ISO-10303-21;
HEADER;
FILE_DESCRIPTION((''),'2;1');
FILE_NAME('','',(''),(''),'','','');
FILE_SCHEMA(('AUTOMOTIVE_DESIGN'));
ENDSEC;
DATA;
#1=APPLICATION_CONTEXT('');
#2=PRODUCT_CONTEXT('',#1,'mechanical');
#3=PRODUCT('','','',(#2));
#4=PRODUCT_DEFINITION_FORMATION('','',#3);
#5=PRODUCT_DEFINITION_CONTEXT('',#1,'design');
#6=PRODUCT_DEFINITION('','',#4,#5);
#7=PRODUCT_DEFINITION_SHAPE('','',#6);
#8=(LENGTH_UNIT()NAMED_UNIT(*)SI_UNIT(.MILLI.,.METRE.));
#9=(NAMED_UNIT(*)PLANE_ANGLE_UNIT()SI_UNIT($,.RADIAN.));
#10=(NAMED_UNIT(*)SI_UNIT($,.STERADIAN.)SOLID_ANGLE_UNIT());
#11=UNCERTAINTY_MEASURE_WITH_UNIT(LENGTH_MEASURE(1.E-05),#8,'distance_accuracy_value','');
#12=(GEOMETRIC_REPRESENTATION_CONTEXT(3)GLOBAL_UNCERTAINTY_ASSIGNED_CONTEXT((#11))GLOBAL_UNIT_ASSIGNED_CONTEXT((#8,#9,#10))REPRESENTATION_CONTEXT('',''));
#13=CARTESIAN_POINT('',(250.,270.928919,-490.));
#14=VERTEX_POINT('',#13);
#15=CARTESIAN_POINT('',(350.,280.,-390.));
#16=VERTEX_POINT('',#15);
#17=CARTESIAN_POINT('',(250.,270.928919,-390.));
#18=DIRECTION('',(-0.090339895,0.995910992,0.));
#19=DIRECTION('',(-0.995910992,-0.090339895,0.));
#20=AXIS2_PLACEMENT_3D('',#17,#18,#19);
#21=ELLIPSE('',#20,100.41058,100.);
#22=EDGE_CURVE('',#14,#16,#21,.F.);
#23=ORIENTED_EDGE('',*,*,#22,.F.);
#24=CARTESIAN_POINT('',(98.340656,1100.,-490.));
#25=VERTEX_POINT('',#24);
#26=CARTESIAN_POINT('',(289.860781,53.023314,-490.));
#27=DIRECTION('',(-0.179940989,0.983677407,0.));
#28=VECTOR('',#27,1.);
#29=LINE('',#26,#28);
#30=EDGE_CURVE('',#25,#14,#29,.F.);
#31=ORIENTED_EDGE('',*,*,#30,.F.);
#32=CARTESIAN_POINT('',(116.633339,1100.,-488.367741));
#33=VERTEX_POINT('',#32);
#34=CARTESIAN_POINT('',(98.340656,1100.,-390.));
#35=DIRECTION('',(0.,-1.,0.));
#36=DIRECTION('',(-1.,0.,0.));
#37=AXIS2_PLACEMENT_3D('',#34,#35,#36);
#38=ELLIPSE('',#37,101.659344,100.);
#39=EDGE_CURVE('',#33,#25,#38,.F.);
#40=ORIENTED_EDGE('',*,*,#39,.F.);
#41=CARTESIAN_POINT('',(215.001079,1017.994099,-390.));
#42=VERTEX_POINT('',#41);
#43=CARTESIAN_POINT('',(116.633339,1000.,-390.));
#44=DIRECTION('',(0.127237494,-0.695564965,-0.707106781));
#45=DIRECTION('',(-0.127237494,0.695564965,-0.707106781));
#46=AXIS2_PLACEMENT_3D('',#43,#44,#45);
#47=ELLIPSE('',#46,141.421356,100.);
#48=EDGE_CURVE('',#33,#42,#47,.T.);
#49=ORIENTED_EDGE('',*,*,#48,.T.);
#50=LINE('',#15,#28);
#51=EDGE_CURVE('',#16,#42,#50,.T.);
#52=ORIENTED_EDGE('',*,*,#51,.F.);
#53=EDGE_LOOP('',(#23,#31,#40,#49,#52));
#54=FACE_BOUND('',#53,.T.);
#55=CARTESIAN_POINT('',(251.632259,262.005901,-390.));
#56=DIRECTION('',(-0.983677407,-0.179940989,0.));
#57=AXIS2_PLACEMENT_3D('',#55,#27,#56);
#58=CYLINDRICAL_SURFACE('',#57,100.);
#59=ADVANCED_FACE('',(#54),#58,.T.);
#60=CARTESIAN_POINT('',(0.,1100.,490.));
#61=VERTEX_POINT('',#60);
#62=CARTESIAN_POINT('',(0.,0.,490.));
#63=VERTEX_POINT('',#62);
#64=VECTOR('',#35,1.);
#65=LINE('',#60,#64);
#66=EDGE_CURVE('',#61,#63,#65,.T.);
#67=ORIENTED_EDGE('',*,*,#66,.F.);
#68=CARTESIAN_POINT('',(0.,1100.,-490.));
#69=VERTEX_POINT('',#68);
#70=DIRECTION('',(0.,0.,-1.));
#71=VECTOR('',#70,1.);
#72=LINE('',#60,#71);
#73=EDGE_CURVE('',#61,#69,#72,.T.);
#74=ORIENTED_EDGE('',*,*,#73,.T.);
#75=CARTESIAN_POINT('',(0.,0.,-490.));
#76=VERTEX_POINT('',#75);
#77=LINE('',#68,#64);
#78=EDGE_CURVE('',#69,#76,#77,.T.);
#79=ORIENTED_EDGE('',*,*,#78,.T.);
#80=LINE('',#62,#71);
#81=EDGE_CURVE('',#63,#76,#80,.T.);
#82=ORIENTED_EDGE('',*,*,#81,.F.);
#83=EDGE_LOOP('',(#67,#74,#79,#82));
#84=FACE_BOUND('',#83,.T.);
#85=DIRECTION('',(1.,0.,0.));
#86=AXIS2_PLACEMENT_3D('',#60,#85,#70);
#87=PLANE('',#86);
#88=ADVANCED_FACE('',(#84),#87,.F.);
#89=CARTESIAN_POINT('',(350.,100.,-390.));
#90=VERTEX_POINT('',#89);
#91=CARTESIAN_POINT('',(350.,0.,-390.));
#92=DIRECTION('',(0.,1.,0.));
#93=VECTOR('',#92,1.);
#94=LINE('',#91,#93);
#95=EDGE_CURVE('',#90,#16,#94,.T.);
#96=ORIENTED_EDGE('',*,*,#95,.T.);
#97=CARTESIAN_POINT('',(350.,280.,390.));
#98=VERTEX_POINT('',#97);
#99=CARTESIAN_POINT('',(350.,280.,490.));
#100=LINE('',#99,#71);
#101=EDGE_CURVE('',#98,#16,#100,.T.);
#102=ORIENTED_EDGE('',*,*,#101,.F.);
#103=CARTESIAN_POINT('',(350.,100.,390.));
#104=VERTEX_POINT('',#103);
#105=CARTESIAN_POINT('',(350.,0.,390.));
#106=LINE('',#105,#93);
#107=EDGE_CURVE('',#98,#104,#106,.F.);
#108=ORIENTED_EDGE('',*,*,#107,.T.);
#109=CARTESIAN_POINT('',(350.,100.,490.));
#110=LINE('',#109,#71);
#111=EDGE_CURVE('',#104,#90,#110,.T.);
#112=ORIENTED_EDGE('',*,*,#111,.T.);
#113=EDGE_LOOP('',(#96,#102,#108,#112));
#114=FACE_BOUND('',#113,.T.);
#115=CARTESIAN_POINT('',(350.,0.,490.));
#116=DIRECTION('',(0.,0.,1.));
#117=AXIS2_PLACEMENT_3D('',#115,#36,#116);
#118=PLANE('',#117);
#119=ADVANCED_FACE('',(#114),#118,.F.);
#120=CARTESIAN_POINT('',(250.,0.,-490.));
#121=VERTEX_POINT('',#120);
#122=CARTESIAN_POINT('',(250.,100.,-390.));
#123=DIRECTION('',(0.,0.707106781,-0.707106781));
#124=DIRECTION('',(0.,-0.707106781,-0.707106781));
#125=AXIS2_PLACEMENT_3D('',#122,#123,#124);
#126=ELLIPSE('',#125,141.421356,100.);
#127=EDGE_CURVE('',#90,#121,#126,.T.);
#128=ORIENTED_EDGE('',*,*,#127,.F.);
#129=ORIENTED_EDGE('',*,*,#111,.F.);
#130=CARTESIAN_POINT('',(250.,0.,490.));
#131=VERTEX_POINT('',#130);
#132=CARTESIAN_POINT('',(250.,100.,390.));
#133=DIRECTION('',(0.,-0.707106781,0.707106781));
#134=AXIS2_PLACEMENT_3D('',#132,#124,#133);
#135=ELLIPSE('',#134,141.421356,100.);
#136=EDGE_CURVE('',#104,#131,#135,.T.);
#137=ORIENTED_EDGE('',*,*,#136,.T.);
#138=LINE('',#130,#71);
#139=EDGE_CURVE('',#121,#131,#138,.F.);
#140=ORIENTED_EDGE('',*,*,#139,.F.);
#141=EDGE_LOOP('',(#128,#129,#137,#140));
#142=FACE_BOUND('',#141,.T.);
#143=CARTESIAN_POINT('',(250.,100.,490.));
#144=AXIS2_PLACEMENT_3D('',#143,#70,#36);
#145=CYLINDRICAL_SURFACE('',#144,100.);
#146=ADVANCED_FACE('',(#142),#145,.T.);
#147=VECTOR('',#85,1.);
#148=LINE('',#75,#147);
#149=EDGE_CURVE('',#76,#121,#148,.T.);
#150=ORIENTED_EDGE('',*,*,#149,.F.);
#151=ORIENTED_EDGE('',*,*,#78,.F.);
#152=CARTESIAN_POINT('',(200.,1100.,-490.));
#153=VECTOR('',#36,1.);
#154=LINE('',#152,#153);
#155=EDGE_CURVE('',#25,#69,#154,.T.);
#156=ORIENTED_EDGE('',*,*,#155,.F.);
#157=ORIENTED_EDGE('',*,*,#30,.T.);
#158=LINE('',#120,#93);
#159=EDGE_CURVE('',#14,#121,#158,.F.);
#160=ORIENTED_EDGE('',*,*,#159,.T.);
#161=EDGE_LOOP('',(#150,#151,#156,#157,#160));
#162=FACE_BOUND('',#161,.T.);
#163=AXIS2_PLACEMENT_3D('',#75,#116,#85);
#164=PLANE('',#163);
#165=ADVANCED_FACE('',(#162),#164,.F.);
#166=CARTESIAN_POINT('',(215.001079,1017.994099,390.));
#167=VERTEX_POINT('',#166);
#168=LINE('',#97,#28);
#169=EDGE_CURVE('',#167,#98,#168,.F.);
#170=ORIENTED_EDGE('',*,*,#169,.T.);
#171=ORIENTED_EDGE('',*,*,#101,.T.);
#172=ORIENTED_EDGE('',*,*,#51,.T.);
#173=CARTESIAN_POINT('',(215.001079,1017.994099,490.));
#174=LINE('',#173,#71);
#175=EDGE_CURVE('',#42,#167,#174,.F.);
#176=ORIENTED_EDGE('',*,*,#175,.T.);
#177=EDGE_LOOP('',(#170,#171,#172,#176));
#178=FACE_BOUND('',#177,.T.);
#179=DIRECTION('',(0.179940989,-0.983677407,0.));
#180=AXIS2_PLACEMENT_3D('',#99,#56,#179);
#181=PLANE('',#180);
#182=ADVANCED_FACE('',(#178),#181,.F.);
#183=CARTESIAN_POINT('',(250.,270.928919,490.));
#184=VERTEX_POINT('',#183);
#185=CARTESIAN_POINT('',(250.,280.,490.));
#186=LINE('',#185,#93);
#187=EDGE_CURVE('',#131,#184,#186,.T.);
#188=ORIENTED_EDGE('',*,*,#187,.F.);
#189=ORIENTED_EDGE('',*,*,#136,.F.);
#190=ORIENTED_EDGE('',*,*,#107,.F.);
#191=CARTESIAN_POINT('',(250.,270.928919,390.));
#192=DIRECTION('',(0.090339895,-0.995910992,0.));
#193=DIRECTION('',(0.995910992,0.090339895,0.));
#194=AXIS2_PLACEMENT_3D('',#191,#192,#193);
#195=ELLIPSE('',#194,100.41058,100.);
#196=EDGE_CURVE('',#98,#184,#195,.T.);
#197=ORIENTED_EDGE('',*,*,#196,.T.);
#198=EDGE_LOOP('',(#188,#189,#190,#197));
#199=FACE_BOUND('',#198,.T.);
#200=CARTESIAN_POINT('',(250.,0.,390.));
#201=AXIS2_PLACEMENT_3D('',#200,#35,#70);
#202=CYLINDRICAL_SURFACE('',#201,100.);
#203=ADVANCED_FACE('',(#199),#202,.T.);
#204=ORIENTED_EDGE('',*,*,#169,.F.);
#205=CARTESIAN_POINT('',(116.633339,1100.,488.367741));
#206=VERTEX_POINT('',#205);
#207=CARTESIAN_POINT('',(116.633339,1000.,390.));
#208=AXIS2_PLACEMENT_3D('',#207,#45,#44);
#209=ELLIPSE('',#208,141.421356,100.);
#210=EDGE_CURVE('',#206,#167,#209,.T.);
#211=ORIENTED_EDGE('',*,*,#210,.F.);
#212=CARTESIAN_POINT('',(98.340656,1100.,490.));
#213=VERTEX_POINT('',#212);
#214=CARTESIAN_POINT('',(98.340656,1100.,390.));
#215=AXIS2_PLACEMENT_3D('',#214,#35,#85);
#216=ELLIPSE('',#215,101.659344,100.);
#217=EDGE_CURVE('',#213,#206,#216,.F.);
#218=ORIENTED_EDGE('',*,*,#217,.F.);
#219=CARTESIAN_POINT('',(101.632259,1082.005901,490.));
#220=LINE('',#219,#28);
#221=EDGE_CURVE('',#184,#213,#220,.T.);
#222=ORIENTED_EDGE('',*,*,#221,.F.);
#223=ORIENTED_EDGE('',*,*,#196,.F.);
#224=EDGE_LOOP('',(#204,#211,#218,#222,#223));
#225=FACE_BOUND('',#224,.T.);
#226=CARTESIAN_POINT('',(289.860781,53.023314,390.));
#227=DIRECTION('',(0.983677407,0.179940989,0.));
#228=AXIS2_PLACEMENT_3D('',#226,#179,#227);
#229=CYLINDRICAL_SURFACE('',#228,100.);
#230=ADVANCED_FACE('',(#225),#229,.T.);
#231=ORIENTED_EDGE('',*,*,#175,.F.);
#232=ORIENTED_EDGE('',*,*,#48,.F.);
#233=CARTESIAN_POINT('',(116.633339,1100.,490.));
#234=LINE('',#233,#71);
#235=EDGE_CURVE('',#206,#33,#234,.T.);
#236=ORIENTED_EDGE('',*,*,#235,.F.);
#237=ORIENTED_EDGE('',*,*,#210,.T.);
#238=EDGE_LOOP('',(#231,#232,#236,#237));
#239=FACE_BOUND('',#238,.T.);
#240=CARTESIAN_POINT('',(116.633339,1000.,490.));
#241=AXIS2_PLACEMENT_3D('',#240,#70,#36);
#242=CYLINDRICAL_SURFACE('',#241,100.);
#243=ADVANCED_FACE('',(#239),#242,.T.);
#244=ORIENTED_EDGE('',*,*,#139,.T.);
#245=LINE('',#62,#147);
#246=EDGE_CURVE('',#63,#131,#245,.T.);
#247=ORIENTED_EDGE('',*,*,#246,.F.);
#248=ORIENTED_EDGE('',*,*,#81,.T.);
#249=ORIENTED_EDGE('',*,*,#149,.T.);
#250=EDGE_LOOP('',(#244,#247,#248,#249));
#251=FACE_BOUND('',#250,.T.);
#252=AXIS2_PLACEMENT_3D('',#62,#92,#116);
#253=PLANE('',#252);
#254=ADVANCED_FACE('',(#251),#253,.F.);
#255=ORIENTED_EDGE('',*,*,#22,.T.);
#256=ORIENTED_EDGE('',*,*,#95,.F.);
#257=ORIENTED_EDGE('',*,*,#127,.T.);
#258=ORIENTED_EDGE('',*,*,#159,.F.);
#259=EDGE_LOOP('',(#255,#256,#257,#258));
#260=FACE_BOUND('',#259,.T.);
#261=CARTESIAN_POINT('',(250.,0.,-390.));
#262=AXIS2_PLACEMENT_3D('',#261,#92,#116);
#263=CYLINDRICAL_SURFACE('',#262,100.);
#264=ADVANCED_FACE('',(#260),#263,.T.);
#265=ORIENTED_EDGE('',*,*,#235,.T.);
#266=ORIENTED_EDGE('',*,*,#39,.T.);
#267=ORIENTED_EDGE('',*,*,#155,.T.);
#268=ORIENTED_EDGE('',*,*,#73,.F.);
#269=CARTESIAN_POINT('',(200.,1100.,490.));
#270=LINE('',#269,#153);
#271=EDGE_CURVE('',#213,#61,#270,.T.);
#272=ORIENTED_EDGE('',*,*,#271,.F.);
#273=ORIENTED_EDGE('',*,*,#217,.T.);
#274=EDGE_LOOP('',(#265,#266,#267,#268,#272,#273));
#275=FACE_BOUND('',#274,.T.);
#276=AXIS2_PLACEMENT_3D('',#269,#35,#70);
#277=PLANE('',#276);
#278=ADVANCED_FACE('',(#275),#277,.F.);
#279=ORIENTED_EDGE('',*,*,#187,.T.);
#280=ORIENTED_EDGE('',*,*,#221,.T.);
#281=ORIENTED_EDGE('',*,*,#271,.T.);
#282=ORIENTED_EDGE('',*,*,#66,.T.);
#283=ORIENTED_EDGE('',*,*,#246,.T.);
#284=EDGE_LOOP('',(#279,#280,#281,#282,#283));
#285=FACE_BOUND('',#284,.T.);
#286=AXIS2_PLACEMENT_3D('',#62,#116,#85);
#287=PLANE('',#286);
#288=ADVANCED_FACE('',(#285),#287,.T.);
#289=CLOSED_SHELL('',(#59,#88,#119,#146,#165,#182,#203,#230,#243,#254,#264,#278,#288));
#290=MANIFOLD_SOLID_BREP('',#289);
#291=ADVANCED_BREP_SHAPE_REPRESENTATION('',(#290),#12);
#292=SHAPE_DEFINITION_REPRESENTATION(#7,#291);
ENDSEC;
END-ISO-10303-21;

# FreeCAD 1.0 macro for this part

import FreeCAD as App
import Part
import Sketcher
from FreeCAD import Vector


def edges_at(feature, points):
    """Names of the edges that pass closest to the given points."""
    edges = feature.Shape.Edges
    near = lambda p: min(range(len(edges)), key=lambda i: edges[i].distToShape(Part.Vertex(*p))[0])
    return sorted({f"Edge{near(p) + 1}" for p in points})


def add_polygon(sketch, points):
    """Adds a closed chain of lines whose ends are joined by coincident constraints."""
    first, n = sketch.GeometryCount, len(points)
    for a, b in zip(points, points[1:] + points[:1]):
        sketch.addGeometry(Part.LineSegment(App.Vector(*a, 0), App.Vector(*b, 0)), False)
    for i in range(n):
        sketch.addConstraint(Sketcher.Constraint("Coincident", first + i, 2, first + (i + 1) % n, 1))

doc = App.newDocument("Part")
params = doc.addObject("Spreadsheet::Sheet", "Params")
for row, (alias, value) in enumerate([
    ("sketch1_width", "350 mm"),
    ("sketch1_width2", "200 mm"),
    ("sketch1_height", "1100 mm"),
    ("sketch1_height2", "280 mm"),
    ("pad1_length", "980 mm"),
    ("fillet_radius", "100 mm"),
], start=1):
    params.set(f"A{row}", alias)
    params.set(f"B{row}", "=" + value)
    params.setAlias(f"B{row}", alias)

body = doc.addObject("PartDesign::Body", "Body")

# Sketch on XY plane
sketch1 = body.newObject("Sketcher::SketchObject", "Sketch")
sketch1.AttachmentSupport = (doc.getObject("XY_Plane"), [""])
sketch1.MapMode = "FlatFace"
add_polygon(sketch1, [(0, 1100), (0, 0), (350, 0), (350, 280), (200, 1100)])  # lines 0-4
sketch1.addConstraint(Sketcher.Constraint("Vertical", 0))
sketch1.addConstraint(Sketcher.Constraint("Horizontal", 1))
sketch1.addConstraint(Sketcher.Constraint("Vertical", 2))
sketch1.addConstraint(Sketcher.Constraint("Horizontal", 4))
sketch1.addConstraint(Sketcher.Constraint("Coincident", 0, 2, -1, 1))
sketch1.addConstraint(Sketcher.Constraint("DistanceX", 1, 1, 1, 2, 350.0))
sketch1.addConstraint(Sketcher.Constraint("DistanceX", 4, 2, 4, 1, 200.0))
sketch1.addConstraint(Sketcher.Constraint("DistanceY", 0, 2, 0, 1, 1100.0))
sketch1.addConstraint(Sketcher.Constraint("DistanceY", 2, 1, 2, 2, 280.0))
sketch1.setExpression("Constraints[10]", "Params.sketch1_width")
sketch1.setExpression("Constraints[11]", "Params.sketch1_width2")
sketch1.setExpression("Constraints[12]", "Params.sketch1_height")
sketch1.setExpression("Constraints[13]", "Params.sketch1_height2")
pad1 = body.newObject("PartDesign::Pad", "Pad")
pad1.Profile = sketch1
pad1.setExpression("Length", "Params.pad1_length")
pad1.Midplane = True
doc.recompute()

fillet = body.newObject("PartDesign::Fillet", "Fillet")
fillet.Base = (pad1, edges_at(pad1, [
    (350, 140, 490),
    (275, 690, 490),
    (275, 690, -490),
    (350, 140, -490),
    (200, 1100, 0),
    (350, 0, 0),
]))
fillet.setExpression("Radius", "Params.fillet_radius")

doc.recompute()
